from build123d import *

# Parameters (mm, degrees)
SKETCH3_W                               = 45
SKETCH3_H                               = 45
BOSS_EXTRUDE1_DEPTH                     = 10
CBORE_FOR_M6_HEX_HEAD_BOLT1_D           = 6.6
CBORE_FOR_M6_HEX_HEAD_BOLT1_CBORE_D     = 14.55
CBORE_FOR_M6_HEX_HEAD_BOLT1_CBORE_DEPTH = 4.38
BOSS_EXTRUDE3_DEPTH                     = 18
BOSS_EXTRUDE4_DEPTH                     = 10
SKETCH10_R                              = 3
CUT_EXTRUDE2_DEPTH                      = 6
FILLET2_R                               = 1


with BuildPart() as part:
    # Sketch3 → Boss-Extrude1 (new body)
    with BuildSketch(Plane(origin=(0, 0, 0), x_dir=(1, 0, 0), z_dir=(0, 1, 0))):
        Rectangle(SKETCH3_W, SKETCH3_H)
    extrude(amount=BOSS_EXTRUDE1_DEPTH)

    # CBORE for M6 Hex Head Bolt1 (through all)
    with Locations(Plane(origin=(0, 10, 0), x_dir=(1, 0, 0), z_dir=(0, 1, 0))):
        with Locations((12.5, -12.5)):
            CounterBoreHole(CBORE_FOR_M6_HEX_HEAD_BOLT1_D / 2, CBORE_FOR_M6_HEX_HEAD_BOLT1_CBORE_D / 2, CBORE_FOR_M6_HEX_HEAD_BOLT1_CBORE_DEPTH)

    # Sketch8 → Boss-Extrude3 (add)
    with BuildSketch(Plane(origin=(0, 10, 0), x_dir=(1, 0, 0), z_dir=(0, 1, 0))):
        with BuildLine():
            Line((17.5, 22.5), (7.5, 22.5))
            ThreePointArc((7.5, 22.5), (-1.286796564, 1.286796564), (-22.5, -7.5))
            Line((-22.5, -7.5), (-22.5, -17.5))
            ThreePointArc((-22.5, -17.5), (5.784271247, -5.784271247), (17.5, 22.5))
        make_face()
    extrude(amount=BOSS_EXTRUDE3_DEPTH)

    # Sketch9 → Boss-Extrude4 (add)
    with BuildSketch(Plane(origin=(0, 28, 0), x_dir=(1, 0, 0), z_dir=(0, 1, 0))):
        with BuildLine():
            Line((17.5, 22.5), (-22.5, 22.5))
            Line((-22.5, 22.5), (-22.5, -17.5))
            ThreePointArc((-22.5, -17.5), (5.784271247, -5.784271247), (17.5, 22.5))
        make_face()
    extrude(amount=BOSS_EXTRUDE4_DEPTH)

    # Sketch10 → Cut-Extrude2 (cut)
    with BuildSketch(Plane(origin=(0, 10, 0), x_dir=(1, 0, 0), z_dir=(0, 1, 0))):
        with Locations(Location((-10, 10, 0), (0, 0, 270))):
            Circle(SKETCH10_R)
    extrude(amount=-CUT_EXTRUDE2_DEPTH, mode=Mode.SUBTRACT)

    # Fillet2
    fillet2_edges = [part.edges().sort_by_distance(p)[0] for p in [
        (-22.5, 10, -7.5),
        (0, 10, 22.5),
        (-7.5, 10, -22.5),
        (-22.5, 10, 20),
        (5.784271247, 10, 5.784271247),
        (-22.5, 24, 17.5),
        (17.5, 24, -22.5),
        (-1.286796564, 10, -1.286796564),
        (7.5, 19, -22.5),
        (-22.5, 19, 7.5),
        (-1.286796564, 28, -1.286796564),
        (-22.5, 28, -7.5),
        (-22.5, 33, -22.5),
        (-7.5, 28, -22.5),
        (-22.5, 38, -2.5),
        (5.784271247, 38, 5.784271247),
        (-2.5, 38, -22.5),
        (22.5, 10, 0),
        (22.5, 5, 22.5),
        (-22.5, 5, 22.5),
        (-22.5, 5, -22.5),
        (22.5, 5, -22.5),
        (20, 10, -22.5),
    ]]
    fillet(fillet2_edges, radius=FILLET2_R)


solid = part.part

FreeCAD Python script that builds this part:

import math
import FreeCAD as App
import Part
import Sketcher

V = App.Vector


def edges_at(feature, points):
    """Names of the edges that pass closest to the given points."""
    edges = feature.Shape.Edges
    near = lambda p: min(range(len(edges)), key=lambda i: edges[i].distToShape(Part.Vertex(*p))[0])
    return sorted({f"Edge{near(p) + 1}" for p in points})

doc = App.newDocument("Part")
body = doc.addObject("PartDesign::Body", "Body")

sketch1 = doc.addObject("Sketcher::SketchObject", "Sketch")
body.addObject(sketch1)
sketch1.AttachmentSupport = (doc.XZ_Plane, [""])
sketch1.MapMode = "FlatFace"
sketch1.addGeometry(Part.LineSegment(V(-22.5, -22.5, 0), V(-22.5, 22.5, 0)), False)
sketch1.addGeometry(Part.LineSegment(V(-22.5, 22.5, 0), V(22.5, 22.5, 0)), False)
sketch1.addGeometry(Part.LineSegment(V(22.5, 22.5, 0), V(22.5, -22.5, 0)), False)
sketch1.addGeometry(Part.LineSegment(V(22.5, -22.5, 0), V(-22.5, -22.5, 0)), False)
sketch1.addConstraint(Sketcher.Constraint("Coincident", 0, 2, 1, 1))
sketch1.addConstraint(Sketcher.Constraint("Coincident", 1, 2, 2, 1))
sketch1.addConstraint(Sketcher.Constraint("Coincident", 2, 2, 3, 1))
sketch1.addConstraint(Sketcher.Constraint("Coincident", 3, 2, 0, 1))
sketch1.addConstraint(Sketcher.Constraint("Vertical", 0))
sketch1.addConstraint(Sketcher.Constraint("Horizontal", 1))
sketch1.addConstraint(Sketcher.Constraint("Vertical", 2))
sketch1.addConstraint(Sketcher.Constraint("Horizontal", 3))
sketch1.addConstraint(Sketcher.Constraint("Symmetric", 0, 2, 2, 2, -1, 1))
sketch1.addConstraint(Sketcher.Constraint("Equal", 3, 0))
sketch1.addConstraint(Sketcher.Constraint("DistanceX", 1, 1, 1, 2, 45.0))
pad1 = doc.addObject("PartDesign::Pad", "Pad")
body.addObject(pad1)
pad1.Profile = sketch1
pad1.Length = 10
pad1.Reversed = True

sketch2 = doc.addObject("Sketcher::SketchObject", "Sketch001")
body.addObject(sketch2)
sketch2.AttachmentSupport = (doc.XZ_Plane, [""])
sketch2.MapMode = "FlatFace"
sketch2.AttachmentOffset = App.Placement(V(0, 0, -10), App.Rotation())
sketch2.addGeometry(Part.Circle(V(12.5, 12.5, 0), V(0, 0, 1), 3.3), False)
sketch2.addConstraint(Sketcher.Constraint("Diameter", 0, 6.6))
sketch2.addConstraint(Sketcher.Constraint("DistanceX", -1, 1, 0, 3, 12.5))
sketch2.addConstraint(Sketcher.Constraint("DistanceY", -1, 1, 0, 3, 12.5))
doc.recompute()
hole = doc.addObject("PartDesign::Hole", "Hole")
body.addObject(hole)
hole.Profile = sketch2
hole.ThreadType = "None"
hole.Diameter = 6.6
hole.DepthType = "ThroughAll"
hole.HoleCutType = "Counterbore"
hole.HoleCutDiameter = 14.55
hole.HoleCutDepth = 4.38
hole.Reversed = True

sketch3 = doc.addObject("Sketcher::SketchObject", "Sketch002")
body.addObject(sketch3)
sketch3.AttachmentSupport = (doc.XZ_Plane, [""])
sketch3.MapMode = "FlatFace"
sketch3.AttachmentOffset = App.Placement(V(0, 0, -10), App.Rotation())
sketch3.addGeometry(Part.LineSegment(V(17.5, -22.5, 0), V(7.5, -22.5, 0)), False)
sketch3.addGeometry(Part.ArcOfCircle(Part.Circle(V(-22.5, -22.5, 0), V(0, 0, 1), 30), math.radians(0), math.radians(90)), False)
sketch3.addGeometry(Part.LineSegment(V(-22.5, 7.5, 0), V(-22.5, 17.5, 0)), False)
sketch3.addGeometry(Part.ArcOfCircle(Part.Circle(V(-22.5, -22.5, 0), V(0, 0, 1), 40), math.radians(0), math.radians(90)), False)
sketch3.addConstraint(Sketcher.Constraint("Coincident", 0, 2, 1, 1))
sketch3.addConstraint(Sketcher.Constraint("Coincident", 1, 2, 2, 1))
sketch3.addConstraint(Sketcher.Constraint("Coincident", 2, 2, 3, 2))
sketch3.addConstraint(Sketcher.Constraint("Coincident", 3, 1, 0, 1))
sketch3.addConstraint(Sketcher.Constraint("Horizontal", 0))
sketch3.addConstraint(Sketcher.Constraint("Vertical", 2))
sketch3.addConstraint(Sketcher.Constraint("Coincident", 3, 3, 1, 3))
sketch3.addConstraint(Sketcher.Constraint("Horizontal", 3, 3, 0, 2))
sketch3.addConstraint(Sketcher.Constraint("Vertical", 3, 3, 1, 2))
sketch3.addConstraint(Sketcher.Constraint("Radius", 1, 30.0))
sketch3.addConstraint(Sketcher.Constraint("Radius", 3, 40.0))
sketch3.addConstraint(Sketcher.Constraint("DistanceX", 1, 3, -1, 1, 22.5))
sketch3.addConstraint(Sketcher.Constraint("DistanceY", 1, 3, -1, 1, 22.5))
pad2 = doc.addObject("PartDesign::Pad", "Pad001")
body.addObject(pad2)
pad2.Profile = sketch3
pad2.Length = 18
pad2.Reversed = True

sketch4 = doc.addObject("Sketcher::SketchObject", "Sketch003")
body.addObject(sketch4)
sketch4.AttachmentSupport = (doc.XZ_Plane, [""])
sketch4.MapMode = "FlatFace"
sketch4.AttachmentOffset = App.Placement(V(0, 0, -28), App.Rotation())
sketch4.addGeometry(Part.LineSegment(V(17.5, -22.5, 0), V(-22.5, -22.5, 0)), False)
sketch4.addGeometry(Part.LineSegment(V(-22.5, -22.5, 0), V(-22.5, 17.5, 0)), False)
sketch4.addGeometry(Part.ArcOfCircle(Part.Circle(V(-22.5, -22.5, 0), V(0, 0, 1), 40), math.radians(0), math.radians(90)), False)
sketch4.addConstraint(Sketcher.Constraint("Coincident", 0, 2, 1, 1))
sketch4.addConstraint(Sketcher.Constraint("Coincident", 1, 2, 2, 2))
sketch4.addConstraint(Sketcher.Constraint("Coincident", 2, 1, 0, 1))
sketch4.addConstraint(Sketcher.Constraint("Horizontal", 0))
sketch4.addConstraint(Sketcher.Constraint("Vertical", 1))
sketch4.addConstraint(Sketcher.Constraint("Coincident", 0, 2, 2, 3))
sketch4.addConstraint(Sketcher.Constraint("Radius", 2, 40.0))
sketch4.addConstraint(Sketcher.Constraint("DistanceX", 2, 3, -1, 1, 22.5))
sketch4.addConstraint(Sketcher.Constraint("DistanceY", 2, 3, -1, 1, 22.5))
pad3 = doc.addObject("PartDesign::Pad", "Pad002")
body.addObject(pad3)
pad3.Profile = sketch4
pad3.Length = 10
pad3.Reversed = True

sketch5 = doc.addObject("Sketcher::SketchObject", "Sketch004")
body.addObject(sketch5)
sketch5.AttachmentSupport = (doc.XZ_Plane, [""])
sketch5.MapMode = "FlatFace"
sketch5.AttachmentOffset = App.Placement(V(0, 0, -10), App.Rotation())
sketch5.addGeometry(Part.Circle(V(-10, -10, 0), V(0, 0, 1), 3), False)
sketch5.addConstraint(Sketcher.Constraint("Diameter", 0, 6.0))
sketch5.addConstraint(Sketcher.Constraint("DistanceX", 0, 3, -1, 1, 10.0))
sketch5.addConstraint(Sketcher.Constraint("DistanceY", 0, 3, -1, 1, 10.0))
pocket1 = doc.addObject("PartDesign::Pocket", "Pocket")
body.addObject(pocket1)
pocket1.Profile = sketch5
pocket1.Length = 6
pocket1.Reversed = True
doc.recompute()

fillet = doc.addObject("PartDesign::Fillet", "Fillet")
body.addObject(fillet)
fillet.Base = (pocket1, edges_at(pocket1, [
    (-22.5, 10, -7.5),
    (0, 10, 22.5),
    (-7.5, 10, -22.5),
    (-22.5, 10, 20),
    (5.784, 10, 5.784),
    (-22.5, 24, 17.5),
    (17.5, 24, -22.5),
    (-1.287, 10, -1.287),
    (7.5, 19, -22.5),
    (-22.5, 19, 7.5),
    (-1.287, 28, -1.287),
    (-22.5, 28, -7.5),
    (-22.5, 33, -22.5),
    (-7.5, 28, -22.5),
    (-22.5, 38, -2.5),
    (5.784, 38, 5.784),
    (-2.5, 38, -22.5),
    (22.5, 10, 0),
    (22.5, 5, 22.5),
    (-22.5, 5, 22.5),
    (-22.5, 5, -22.5),
    (22.5, 5, -22.5),
    (20, 10, -22.5),
]))
fillet.Radius = 1

doc.recompute()
